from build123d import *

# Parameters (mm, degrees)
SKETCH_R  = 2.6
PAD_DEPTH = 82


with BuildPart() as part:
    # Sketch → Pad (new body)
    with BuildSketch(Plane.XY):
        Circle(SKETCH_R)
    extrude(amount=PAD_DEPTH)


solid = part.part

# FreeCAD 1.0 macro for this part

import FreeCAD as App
import Part
import Sketcher

V = App.Vector

doc = App.newDocument("Part")
body = doc.addObject("PartDesign::Body", "Body")

# Sketch on XY plane
sketch1 = body.newObject("Sketcher::SketchObject", "Sketch")
sketch1.AttachmentSupport = (doc.getObject("XY_Plane"), [""])
sketch1.MapMode = "FlatFace"
sketch1.addGeometry(Part.Circle(V(0, 0, 0), V(0, 0, 1), 2.6), False)
sketch1.addConstraint([
    Sketcher.Constraint("Coincident", 0, 3, -1, 1),
    Sketcher.Constraint("Diameter", 0, 5.2),
])
pad1 = body.newObject("PartDesign::Pad", "Pad")
pad1.Profile = sketch1
pad1.Length = 82

doc.recompute()
